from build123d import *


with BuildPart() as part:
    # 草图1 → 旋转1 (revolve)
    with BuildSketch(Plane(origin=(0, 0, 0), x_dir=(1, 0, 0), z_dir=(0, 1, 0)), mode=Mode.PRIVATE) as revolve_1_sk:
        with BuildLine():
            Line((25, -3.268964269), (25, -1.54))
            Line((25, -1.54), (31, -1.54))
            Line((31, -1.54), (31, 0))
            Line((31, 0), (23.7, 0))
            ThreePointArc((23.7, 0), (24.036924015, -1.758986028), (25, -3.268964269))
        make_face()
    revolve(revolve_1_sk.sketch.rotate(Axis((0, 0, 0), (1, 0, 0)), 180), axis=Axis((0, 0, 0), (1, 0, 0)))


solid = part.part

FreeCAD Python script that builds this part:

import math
import FreeCAD as App
import Part
import Sketcher

doc = App.newDocument("Part")
params = doc.addObject("Spreadsheet::Sheet", "Params")
for row, (alias, value) in enumerate([
    ("sketch1_width", "6 mm"),
    ("sketch1_width2", "7.3 mm"),
    ("sketch1_height", "1.54 mm"),
    ("revolution_angle", "360 deg"),
], start=1):
    params.set(f"A{row}", alias)
    params.set(f"B{row}", "=" + value)
    params.setAlias(f"B{row}", alias)

body = doc.addObject("PartDesign::Body", "Body")

# Sketch on XZ plane
sketch1 = body.newObject("Sketcher::SketchObject", "Sketch")
sketch1.AttachmentSupport = (doc.getObject("XZ_Plane"), [""])
sketch1.MapMode = "FlatFace"
sketch1.addGeometry(Part.LineSegment(App.Vector(25, 3.3, 0), App.Vector(25, 1.5, 0)), False)
sketch1.addGeometry(Part.LineSegment(App.Vector(25, 1.5, 0), App.Vector(31, 1.5, 0)), False)
sketch1.addGeometry(Part.LineSegment(App.Vector(31, 1.5, 0), App.Vector(31, 0, 0)), False)
sketch1.addGeometry(Part.LineSegment(App.Vector(31, 0, 0), App.Vector(23.7, 0, 0)), False)
sketch1.addGeometry(Part.ArcOfCircle(Part.Circle(App.Vector(28.5, 0, 0), App.Vector(0, 0, 1), 4.8), math.radians(137), math.radians(180)), False)
sketch1.addConstraint(Sketcher.Constraint("Coincident", 0, 2, 1, 1))
sketch1.addConstraint(Sketcher.Constraint("Coincident", 1, 2, 2, 1))
sketch1.addConstraint(Sketcher.Constraint("Coincident", 2, 2, 3, 1))
sketch1.addConstraint(Sketcher.Constraint("Coincident", 3, 2, 4, 2))
sketch1.addConstraint(Sketcher.Constraint("Coincident", 4, 1, 0, 1))
sketch1.addConstraint(Sketcher.Constraint("Vertical", 0))
sketch1.addConstraint(Sketcher.Constraint("Horizontal", 1))
sketch1.addConstraint(Sketcher.Constraint("Vertical", 2))
sketch1.addConstraint(Sketcher.Constraint("Horizontal", 3))
sketch1.addConstraint(Sketcher.Constraint("PointOnObject", 4, 3, -1))
sketch1.addConstraint(Sketcher.Constraint("PointOnObject", 2, 2, -1))
sketch1.addConstraint(Sketcher.Constraint("DistanceX", 1, 1, 1, 2, 6.0))
sketch1.addConstraint(Sketcher.Constraint("DistanceX", 3, 2, 3, 1, 7.3))
sketch1.addConstraint(Sketcher.Constraint("DistanceX", -1, 1, 0, 2, 25.0))
sketch1.addConstraint(Sketcher.Constraint("DistanceY", 2, 2, 2, 1, 1.54))
sketch1.addConstraint(Sketcher.Constraint("Radius", 4, 4.760049))
sketch1.setExpression("Constraints[11]", "Params.sketch1_width")
sketch1.setExpression("Constraints[12]", "Params.sketch1_width2")
sketch1.setExpression("Constraints[14]", "Params.sketch1_height")
revolution = body.newObject("PartDesign::Revolution", "Revolution")
revolution.Profile = sketch1
revolution.ReferenceAxis = (sketch1, ["H_Axis"])
revolution.setExpression("Angle", "Params.revolution_angle")

doc.recompute()
